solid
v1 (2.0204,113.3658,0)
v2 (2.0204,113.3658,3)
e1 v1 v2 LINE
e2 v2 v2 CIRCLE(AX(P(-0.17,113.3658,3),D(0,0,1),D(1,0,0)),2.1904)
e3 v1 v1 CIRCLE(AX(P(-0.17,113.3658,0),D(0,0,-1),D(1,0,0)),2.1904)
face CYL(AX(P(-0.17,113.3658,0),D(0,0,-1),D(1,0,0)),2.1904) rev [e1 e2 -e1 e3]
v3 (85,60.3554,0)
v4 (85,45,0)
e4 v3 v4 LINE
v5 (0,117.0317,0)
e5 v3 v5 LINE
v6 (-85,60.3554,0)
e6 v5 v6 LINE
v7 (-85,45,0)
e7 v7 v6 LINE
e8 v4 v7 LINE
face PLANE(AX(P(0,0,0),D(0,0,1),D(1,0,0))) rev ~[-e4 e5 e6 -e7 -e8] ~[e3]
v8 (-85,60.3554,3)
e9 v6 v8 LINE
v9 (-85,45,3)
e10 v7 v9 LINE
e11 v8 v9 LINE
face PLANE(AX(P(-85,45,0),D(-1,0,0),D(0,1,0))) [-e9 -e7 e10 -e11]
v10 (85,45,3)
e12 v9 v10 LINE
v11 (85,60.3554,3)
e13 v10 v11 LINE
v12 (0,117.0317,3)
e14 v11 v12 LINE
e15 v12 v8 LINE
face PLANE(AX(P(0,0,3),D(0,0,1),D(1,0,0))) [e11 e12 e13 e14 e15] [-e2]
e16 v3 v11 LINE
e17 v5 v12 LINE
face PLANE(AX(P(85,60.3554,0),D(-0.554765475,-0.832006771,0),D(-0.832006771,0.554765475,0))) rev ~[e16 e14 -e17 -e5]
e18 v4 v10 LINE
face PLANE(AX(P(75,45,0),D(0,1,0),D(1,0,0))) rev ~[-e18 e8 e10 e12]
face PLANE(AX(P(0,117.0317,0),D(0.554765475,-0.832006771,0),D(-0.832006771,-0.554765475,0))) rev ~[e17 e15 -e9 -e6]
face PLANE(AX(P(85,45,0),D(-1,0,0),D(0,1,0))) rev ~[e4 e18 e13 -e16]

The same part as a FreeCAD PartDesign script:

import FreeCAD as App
import Part
import Sketcher

V = App.Vector
Q = App.Units.Quantity


def add_polygon(sketch, points):
    """Adds a closed chain of lines whose ends are joined by coincident constraints."""
    first, n = sketch.GeometryCount, len(points)
    for a, b in zip(points, points[1:] + points[:1]):
        sketch.addGeometry(Part.LineSegment(App.Vector(*a, 0), App.Vector(*b, 0)), False)
    for i in range(n):
        sketch.addConstraint(Sketcher.Constraint("Coincident", first + i, 2, first + (i + 1) % n, 1))

doc = App.newDocument("Part")
params = doc.addObject("Spreadsheet::Sheet", "Params")
for row, (alias, value) in enumerate([
    ("sketch1_width", "170 mm"),
    ("pad1_length", "3 mm"),
], start=1):
    params.set(f"A{row}", alias)
    params.set(f"B{row}", "=" + value)
    params.setAlias(f"B{row}", alias)

body = doc.addObject("PartDesign::Body", "Body")

sketch1 = body.newObject("Sketcher::SketchObject", "Sketch")
sketch1.AttachmentSupport = (doc.getObject("XY_Plane"), [""])
sketch1.MapMode = "FlatFace"
add_polygon(sketch1, [(85, 45), (85, 60.4), (0, 117), (-85, 60.4), (-85, 45)])
sketch1.addGeometry(Part.Circle(V(-0.2, 113.4, 0), V(0, 0, 1), 2.2), False)
sketch1.addConstraint(Sketcher.Constraint("Vertical", 0))
sketch1.addConstraint(Sketcher.Constraint("Vertical", 3))
sketch1.addConstraint(Sketcher.Constraint("Horizontal", 4))
sketch1.addConstraint(Sketcher.Constraint("Symmetric", 0, 2, 2, 2, -2))
sketch1.addConstraint(Sketcher.Constraint("PointOnObject", 1, 2, -2))
sketch1.addConstraint(Sketcher.Constraint("DistanceX", 4, 1, 4, 2, Q("170 mm")))
sketch1.addConstraint(Sketcher.Constraint("DistanceY", -1, 1, 3, 2, Q("45 mm")))
sketch1.addConstraint(Sketcher.Constraint("Diameter", 5, Q("4.3808 mm")))
sketch1.addConstraint(Sketcher.Constraint("DistanceX", 5, 3, -1, 1, Q("0.17 mm")))
sketch1.addConstraint(Sketcher.Constraint("DistanceY", 0, 1, 0, 2, Q("15.3554 mm")))
sketch1.addConstraint(Sketcher.Constraint("DistanceY", 5, 3, 1, 2, Q("3.666 mm")))
sketch1.addConstraint(Sketcher.Constraint("Distance", 1, Q("102.1626 mm")))
sketch1.setExpression("Constraints[10]", "Params.sketch1_width")
pad1 = body.newObject("PartDesign::Pad", "Pad")
pad1.Profile = sketch1
pad1.setExpression("Length", "Params.pad1_length")

doc.recompute()
